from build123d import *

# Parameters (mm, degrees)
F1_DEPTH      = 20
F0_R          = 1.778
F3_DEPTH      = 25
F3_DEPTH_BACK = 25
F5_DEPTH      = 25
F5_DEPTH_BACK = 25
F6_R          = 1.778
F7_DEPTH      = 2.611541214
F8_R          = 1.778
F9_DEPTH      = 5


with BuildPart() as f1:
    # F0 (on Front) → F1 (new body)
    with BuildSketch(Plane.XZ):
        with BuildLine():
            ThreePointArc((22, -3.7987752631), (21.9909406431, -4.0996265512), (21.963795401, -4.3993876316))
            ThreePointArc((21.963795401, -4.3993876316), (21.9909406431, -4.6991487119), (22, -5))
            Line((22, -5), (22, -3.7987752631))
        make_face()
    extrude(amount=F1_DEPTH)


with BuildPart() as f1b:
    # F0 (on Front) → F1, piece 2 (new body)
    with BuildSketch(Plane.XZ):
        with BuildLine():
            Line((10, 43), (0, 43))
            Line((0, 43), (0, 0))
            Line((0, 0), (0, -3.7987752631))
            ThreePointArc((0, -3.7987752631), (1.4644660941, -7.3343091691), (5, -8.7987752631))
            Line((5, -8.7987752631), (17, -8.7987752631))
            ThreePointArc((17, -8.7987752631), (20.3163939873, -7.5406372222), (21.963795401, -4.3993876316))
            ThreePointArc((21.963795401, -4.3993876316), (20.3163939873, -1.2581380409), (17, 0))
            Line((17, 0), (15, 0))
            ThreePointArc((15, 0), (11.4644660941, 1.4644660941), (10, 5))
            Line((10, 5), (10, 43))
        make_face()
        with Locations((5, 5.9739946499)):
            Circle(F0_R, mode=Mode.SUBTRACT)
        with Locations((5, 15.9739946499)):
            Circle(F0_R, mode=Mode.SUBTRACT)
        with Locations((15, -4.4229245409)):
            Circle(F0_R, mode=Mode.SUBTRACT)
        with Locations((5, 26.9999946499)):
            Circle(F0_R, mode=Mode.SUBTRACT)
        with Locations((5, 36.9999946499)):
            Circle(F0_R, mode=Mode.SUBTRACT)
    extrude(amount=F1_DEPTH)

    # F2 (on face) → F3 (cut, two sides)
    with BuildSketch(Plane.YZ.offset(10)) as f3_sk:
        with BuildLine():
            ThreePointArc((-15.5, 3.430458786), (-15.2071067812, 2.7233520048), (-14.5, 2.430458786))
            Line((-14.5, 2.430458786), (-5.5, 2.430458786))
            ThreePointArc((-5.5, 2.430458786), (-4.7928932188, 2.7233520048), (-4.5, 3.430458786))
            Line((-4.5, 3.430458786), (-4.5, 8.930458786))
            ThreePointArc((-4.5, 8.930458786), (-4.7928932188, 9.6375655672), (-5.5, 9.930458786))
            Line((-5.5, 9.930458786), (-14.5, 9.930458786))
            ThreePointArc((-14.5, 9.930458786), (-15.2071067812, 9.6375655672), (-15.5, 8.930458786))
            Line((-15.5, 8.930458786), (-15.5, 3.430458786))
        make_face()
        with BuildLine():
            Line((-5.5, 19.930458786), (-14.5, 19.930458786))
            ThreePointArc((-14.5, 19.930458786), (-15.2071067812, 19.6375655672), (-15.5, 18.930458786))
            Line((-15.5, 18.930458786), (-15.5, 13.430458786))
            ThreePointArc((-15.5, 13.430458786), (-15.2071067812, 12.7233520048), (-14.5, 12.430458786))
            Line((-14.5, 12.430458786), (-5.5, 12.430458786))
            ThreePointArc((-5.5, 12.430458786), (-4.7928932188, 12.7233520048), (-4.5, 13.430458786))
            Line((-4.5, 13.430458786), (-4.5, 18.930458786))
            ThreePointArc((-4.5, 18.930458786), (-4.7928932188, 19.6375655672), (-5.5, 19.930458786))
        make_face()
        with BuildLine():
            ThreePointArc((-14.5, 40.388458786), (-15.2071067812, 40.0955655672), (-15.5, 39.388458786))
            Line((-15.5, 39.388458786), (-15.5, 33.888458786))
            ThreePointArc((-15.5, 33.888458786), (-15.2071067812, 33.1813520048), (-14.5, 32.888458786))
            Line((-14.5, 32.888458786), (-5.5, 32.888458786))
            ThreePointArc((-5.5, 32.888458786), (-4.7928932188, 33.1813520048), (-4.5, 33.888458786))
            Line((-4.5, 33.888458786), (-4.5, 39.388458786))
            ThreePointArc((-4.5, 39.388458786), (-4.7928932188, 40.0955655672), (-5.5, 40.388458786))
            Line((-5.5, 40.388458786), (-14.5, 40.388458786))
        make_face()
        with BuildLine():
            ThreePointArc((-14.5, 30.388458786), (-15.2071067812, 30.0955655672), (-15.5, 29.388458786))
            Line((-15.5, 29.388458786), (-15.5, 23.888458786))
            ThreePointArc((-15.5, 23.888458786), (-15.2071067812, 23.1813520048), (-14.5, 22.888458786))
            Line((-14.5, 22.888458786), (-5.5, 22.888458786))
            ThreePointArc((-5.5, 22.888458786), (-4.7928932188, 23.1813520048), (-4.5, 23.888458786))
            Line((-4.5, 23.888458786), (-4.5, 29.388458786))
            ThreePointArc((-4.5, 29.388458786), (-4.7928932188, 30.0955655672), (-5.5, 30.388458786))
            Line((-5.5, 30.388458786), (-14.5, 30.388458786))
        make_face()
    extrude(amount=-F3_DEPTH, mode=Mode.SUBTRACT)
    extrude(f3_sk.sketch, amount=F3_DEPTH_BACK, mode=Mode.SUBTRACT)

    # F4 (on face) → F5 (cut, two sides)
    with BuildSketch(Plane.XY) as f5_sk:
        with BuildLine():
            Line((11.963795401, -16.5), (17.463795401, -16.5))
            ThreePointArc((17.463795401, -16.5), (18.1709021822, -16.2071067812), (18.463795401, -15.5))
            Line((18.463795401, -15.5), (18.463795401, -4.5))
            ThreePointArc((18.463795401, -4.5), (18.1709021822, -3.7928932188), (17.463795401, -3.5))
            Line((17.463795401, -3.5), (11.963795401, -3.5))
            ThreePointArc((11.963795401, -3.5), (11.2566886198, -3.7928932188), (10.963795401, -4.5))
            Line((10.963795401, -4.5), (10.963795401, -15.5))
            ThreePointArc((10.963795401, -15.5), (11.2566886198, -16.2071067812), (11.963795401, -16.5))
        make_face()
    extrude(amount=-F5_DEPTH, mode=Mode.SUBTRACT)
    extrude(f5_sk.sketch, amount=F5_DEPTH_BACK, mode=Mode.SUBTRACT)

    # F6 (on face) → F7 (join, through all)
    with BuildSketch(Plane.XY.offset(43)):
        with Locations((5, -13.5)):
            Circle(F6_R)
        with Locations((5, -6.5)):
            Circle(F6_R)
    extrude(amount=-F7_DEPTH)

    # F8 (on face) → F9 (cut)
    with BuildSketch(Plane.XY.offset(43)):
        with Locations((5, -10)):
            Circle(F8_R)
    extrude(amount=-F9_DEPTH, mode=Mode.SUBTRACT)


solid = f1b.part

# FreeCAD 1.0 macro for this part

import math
import FreeCAD as App
import Part
import Sketcher

V = App.Vector
Q = App.Units.Quantity

doc = App.newDocument("Part")
body = doc.addObject("PartDesign::Body", "Body")

sketch1 = body.newObject("Sketcher::SketchObject", "Sketch")
sketch1.AttachmentSupport = (doc.getObject("XZ_Plane"), [""])
sketch1.MapMode = "FlatFace"
sketch1.addGeometry(Part.ArcOfCircle(Part.Circle(V(17, -3.8, 0), V(0, 0, 1), 5), math.radians(-6.9), math.radians(0)), False)
sketch1.addGeometry(Part.ArcOfCircle(Part.Circle(V(17, -5, 0), V(0, 0, 1), 5), math.radians(0), math.radians(6.9)), False)
sketch1.addGeometry(Part.LineSegment(V(22, -5, 0), V(22, -3.8, 0)), False)
sketch1.addConstraint(Sketcher.Constraint("Coincident", 0, 1, 1, 2))
sketch1.addConstraint(Sketcher.Constraint("Tangent", 1, 1, 2, 1))
sketch1.addConstraint(Sketcher.Constraint("Tangent", 2, 2, 0, 2))
sketch1.addConstraint(Sketcher.Constraint("Vertical", 2))
sketch1.addConstraint(Sketcher.Constraint("Equal", 0, 1))
sketch1.addConstraint(Sketcher.Constraint("Radius", 0, Q("5 mm")))
sketch1.addConstraint(Sketcher.Constraint("DistanceX", -1, 1, 0, 3, Q("17 mm")))
sketch1.addConstraint(Sketcher.Constraint("DistanceY", 1, 3, -1, 1, Q("5 mm")))
sketch1.addConstraint(Sketcher.Constraint("DistanceY", 2, 1, 2, 2, Q("1.201225 mm")))
pad1 = body.newObject("PartDesign::Pad", "Pad")
pad1.Profile = sketch1
pad1.Length = 20
body2 = doc.addObject("PartDesign::Body", "Body001")

sketch2 = body2.newObject("Sketcher::SketchObject", "Sketch001")
sketch2.AttachmentSupport = (doc.getObject("XZ_Plane001"), [""])
sketch2.MapMode = "FlatFace"
sketch2.addGeometry(Part.LineSegment(V(10, 43, 0), V(0, 43, 0)), False)
sketch2.addGeometry(Part.LineSegment(V(0, 43, 0), V(0, -3.8, 0)), False)
sketch2.addGeometry(Part.ArcOfCircle(Part.Circle(V(5, -3.8, 0), V(0, 0, 1), 5), math.radians(180), math.radians(270)), False)
sketch2.addGeometry(Part.LineSegment(V(5, -8.8, 0), V(17, -8.8, 0)), False)
sketch2.addGeometry(Part.ArcOfCircle(Part.Circle(V(17, -3.8, 0), V(0, 0, 1), 5), math.radians(-90), math.radians(-7)), False)
sketch2.addGeometry(Part.ArcOfCircle(Part.Circle(V(17, -5, 0), V(0, 0, 1), 5), math.radians(7), math.radians(90)), False)
sketch2.addGeometry(Part.LineSegment(V(17, 0, 0), V(15, 0, 0)), False)
sketch2.addGeometry(Part.ArcOfCircle(Part.Circle(V(15, 5, 0), V(0, 0, 1), 5), math.radians(180), math.radians(270)), False)
sketch2.addGeometry(Part.LineSegment(V(10, 5, 0), V(10, 43, 0)), False)
sketch2.addGeometry(Part.Circle(V(5, 6, 0), V(0, 0, 1), 1.8), False)
sketch2.addGeometry(Part.Circle(V(5, 16, 0), V(0, 0, 1), 1.8), False)
sketch2.addGeometry(Part.Circle(V(15, -4.4, 0), V(0, 0, 1), 1.8), False)
sketch2.addGeometry(Part.Circle(V(5, 27, 0), V(0, 0, 1), 1.8), False)
sketch2.addGeometry(Part.Circle(V(5, 37, 0), V(0, 0, 1), 1.8), False)
sketch2.addConstraint(Sketcher.Constraint("Coincident", 0, 2, 1, 1))
sketch2.addConstraint(Sketcher.Constraint("Tangent", 1, 2, 2, 1))
sketch2.addConstraint(Sketcher.Constraint("Tangent", 2, 2, 3, 1))
sketch2.addConstraint(Sketcher.Constraint("Tangent", 3, 2, 4, 1))
sketch2.addConstraint(Sketcher.Constraint("Coincident", 4, 2, 5, 1))
sketch2.addConstraint(Sketcher.Constraint("Tangent", 5, 2, 6, 1))
sketch2.addConstraint(Sketcher.Constraint("Tangent", 6, 2, 7, 2))
sketch2.addConstraint(Sketcher.Constraint("Tangent", 7, 1, 8, 1))
sketch2.addConstraint(Sketcher.Constraint("Coincident", 8, 2, 0, 1))
sketch2.addConstraint(Sketcher.Constraint("Horizontal", 0))
sketch2.addConstraint(Sketcher.Constraint("Vertical", 1))
sketch2.addConstraint(Sketcher.Constraint("Horizontal", 3))
sketch2.addConstraint(Sketcher.Constraint("Horizontal", 6))
sketch2.addConstraint(Sketcher.Constraint("Vertical", 8))
sketch2.addConstraint(Sketcher.Constraint("Equal", 2, 4))
sketch2.addConstraint(Sketcher.Constraint("Equal", 4, 5))
sketch2.addConstraint(Sketcher.Constraint("Equal", 5, 7))
sketch2.addConstraint(Sketcher.Constraint("Equal", 9, 10))
sketch2.addConstraint(Sketcher.Constraint("Equal", 10, 11))
sketch2.addConstraint(Sketcher.Constraint("Equal", 11, 12))
sketch2.addConstraint(Sketcher.Constraint("Equal", 12, 13))
sketch2.addConstraint(Sketcher.Constraint("PointOnObject", 0, 2, -2))
sketch2.addConstraint(Sketcher.Constraint("PointOnObject", 5, 2, -1))
sketch2.addConstraint(Sketcher.Constraint("Vertical", 4, 3, 5, 3))
sketch2.addConstraint(Sketcher.Constraint("Vertical", 2, 3, 9, 3))
sketch2.addConstraint(Sketcher.Constraint("Vertical", 9, 3, 10, 3))
sketch2.addConstraint(Sketcher.Constraint("Vertical", 7, 3, 11, 3))
sketch2.addConstraint(Sketcher.Constraint("Vertical", 10, 3, 12, 3))
sketch2.addConstraint(Sketcher.Constraint("Vertical", 12, 3, 13, 3))
sketch2.addConstraint(Sketcher.Constraint("Radius", 2, Q("5 mm")))
sketch2.addConstraint(Sketcher.Constraint("DistanceX", 0, 2, 0, 1, Q("10 mm")))
sketch2.addConstraint(Sketcher.Constraint("DistanceX", 3, 1, 3, 2, Q("12 mm")))
sketch2.addConstraint(Sketcher.Constraint("DistanceY", 8, 1, 8, 2, Q("38 mm")))
sketch2.addConstraint(Sketcher.Constraint("Diameter", 9, Q("3.556 mm")))
sketch2.addConstraint(Sketcher.Constraint("DistanceY", 9, 3, 10, 3, Q("10 mm")))
sketch2.addConstraint(Sketcher.Constraint("DistanceY", 12, 3, 13, 3, Q("10 mm")))
sketch2.addConstraint(Sketcher.Constraint("DistanceY", 10, 3, 12, 3, Q("11.026 mm")))
sketch2.addConstraint(Sketcher.Constraint("DistanceY", 1, 2, 1, 1, Q("46.798775 mm")))
sketch2.addConstraint(Sketcher.Constraint("DistanceY", 2, 3, 9, 3, Q("9.77277 mm")))
sketch2.addConstraint(Sketcher.Constraint("DistanceY", 11, 3, 4, 3, Q("0.624149 mm")))
pad2 = body2.newObject("PartDesign::Pad", "Pad001")
pad2.Profile = sketch2
pad2.Length = 20

sketch3 = body2.newObject("Sketcher::SketchObject", "Sketch002")
sketch3.AttachmentSupport = (doc.getObject("YZ_Plane001"), [""])
sketch3.MapMode = "FlatFace"
sketch3.AttachmentOffset = App.Placement(V(0, 0, 10), App.Rotation())
sketch3.addGeometry(Part.ArcOfCircle(Part.Circle(V(-14.5, 3.4, 0), V(0, 0, 1), 1), math.radians(180), math.radians(270)), False)
sketch3.addGeometry(Part.LineSegment(V(-14.5, 2.4, 0), V(-5.5, 2.4, 0)), False)
sketch3.addGeometry(Part.ArcOfCircle(Part.Circle(V(-5.5, 3.4, 0), V(0, 0, 1), 1), math.radians(-90), math.radians(0)), False)
sketch3.addGeometry(Part.LineSegment(V(-4.5, 3.4, 0), V(-4.5, 8.9, 0)), False)
sketch3.addGeometry(Part.ArcOfCircle(Part.Circle(V(-5.5, 8.9, 0), V(0, 0, 1), 1), math.radians(0), math.radians(90)), False)
sketch3.addGeometry(Part.LineSegment(V(-5.5, 9.9, 0), V(-14.5, 9.9, 0)), False)
sketch3.addGeometry(Part.ArcOfCircle(Part.Circle(V(-14.5, 8.9, 0), V(0, 0, 1), 1), math.radians(90), math.radians(180)), False)
sketch3.addGeometry(Part.LineSegment(V(-15.5, 8.9, 0), V(-15.5, 3.4, 0)), False)
sketch3.addGeometry(Part.LineSegment(V(-5.5, 19.9, 0), V(-14.5, 19.9, 0)), False)
sketch3.addGeometry(Part.ArcOfCircle(Part.Circle(V(-14.5, 18.9, 0), V(0, 0, 1), 1), math.radians(90), math.radians(180)), False)
sketch3.addGeometry(Part.LineSegment(V(-15.5, 18.9, 0), V(-15.5, 13.4, 0)), False)
sketch3.addGeometry(Part.ArcOfCircle(Part.Circle(V(-14.5, 13.4, 0), V(0, 0, 1), 1), math.radians(180), math.radians(270)), False)
sketch3.addGeometry(Part.LineSegment(V(-14.5, 12.4, 0), V(-5.5, 12.4, 0)), False)
sketch3.addGeometry(Part.ArcOfCircle(Part.Circle(V(-5.5, 13.4, 0), V(0, 0, 1), 1), math.radians(-90), math.radians(0)), False)
sketch3.addGeometry(Part.LineSegment(V(-4.5, 13.4, 0), V(-4.5, 18.9, 0)), False)
sketch3.addGeometry(Part.ArcOfCircle(Part.Circle(V(-5.5, 18.9, 0), V(0, 0, 1), 1), math.radians(0), math.radians(90)), False)
sketch3.addGeometry(Part.ArcOfCircle(Part.Circle(V(-14.5, 39.4, 0), V(0, 0, 1), 1), math.radians(90), math.radians(180)), False)
sketch3.addGeometry(Part.LineSegment(V(-15.5, 39.4, 0), V(-15.5, 33.9, 0)), False)
sketch3.addGeometry(Part.ArcOfCircle(Part.Circle(V(-14.5, 33.9, 0), V(0, 0, 1), 1), math.radians(180), math.radians(270)), False)
sketch3.addGeometry(Part.LineSegment(V(-14.5, 32.9, 0), V(-5.5, 32.9, 0)), False)
sketch3.addGeometry(Part.ArcOfCircle(Part.Circle(V(-5.5, 33.9, 0), V(0, 0, 1), 1), math.radians(-90), math.radians(0)), False)
sketch3.addGeometry(Part.LineSegment(V(-4.5, 33.9, 0), V(-4.5, 39.4, 0)), False)
sketch3.addGeometry(Part.ArcOfCircle(Part.Circle(V(-5.5, 39.4, 0), V(0, 0, 1), 1), math.radians(0), math.radians(90)), False)
sketch3.addGeometry(Part.LineSegment(V(-5.5, 40.4, 0), V(-14.5, 40.4, 0)), False)
sketch3.addGeometry(Part.ArcOfCircle(Part.Circle(V(-14.5, 29.4, 0), V(0, 0, 1), 1), math.radians(90), math.radians(180)), False)
sketch3.addGeometry(Part.LineSegment(V(-15.5, 29.4, 0), V(-15.5, 23.9, 0)), False)
sketch3.addGeometry(Part.ArcOfCircle(Part.Circle(V(-14.5, 23.9, 0), V(0, 0, 1), 1), math.radians(180), math.radians(270)), False)
sketch3.addGeometry(Part.LineSegment(V(-14.5, 22.9, 0), V(-5.5, 22.9, 0)), False)
sketch3.addGeometry(Part.ArcOfCircle(Part.Circle(V(-5.5, 23.9, 0), V(0, 0, 1), 1), math.radians(-90), math.radians(0)), False)
sketch3.addGeometry(Part.LineSegment(V(-4.5, 23.9, 0), V(-4.5, 29.4, 0)), False)
sketch3.addGeometry(Part.ArcOfCircle(Part.Circle(V(-5.5, 29.4, 0), V(0, 0, 1), 1), math.radians(0), math.radians(90)), False)
sketch3.addGeometry(Part.LineSegment(V(-5.5, 30.4, 0), V(-14.5, 30.4, 0)), False)
sketch3.addConstraint(Sketcher.Constraint("Tangent", 0, 2, 1, 1))
sketch3.addConstraint(Sketcher.Constraint("Tangent", 1, 2, 2, 1))
sketch3.addConstraint(Sketcher.Constraint("Tangent", 2, 2, 3, 1))
sketch3.addConstraint(Sketcher.Constraint("Tangent", 3, 2, 4, 1))
sketch3.addConstraint(Sketcher.Constraint("Tangent", 4, 2, 5, 1))
sketch3.addConstraint(Sketcher.Constraint("Tangent", 5, 2, 6, 1))
sketch3.addConstraint(Sketcher.Constraint("Tangent", 6, 2, 7, 1))
sketch3.addConstraint(Sketcher.Constraint("Tangent", 7, 2, 0, 1))
sketch3.addConstraint(Sketcher.Constraint("Tangent", 8, 2, 9, 1))
sketch3.addConstraint(Sketcher.Constraint("Tangent", 9, 2, 10, 1))
sketch3.addConstraint(Sketcher.Constraint("Tangent", 10, 2, 11, 1))
sketch3.addConstraint(Sketcher.Constraint("Tangent", 11, 2, 12, 1))
sketch3.addConstraint(Sketcher.Constraint("Tangent", 12, 2, 13, 1))
sketch3.addConstraint(Sketcher.Constraint("Tangent", 13, 2, 14, 1))
sketch3.addConstraint(Sketcher.Constraint("Tangent", 14, 2, 15, 1))
sketch3.addConstraint(Sketcher.Constraint("Tangent", 15, 2, 8, 1))
sketch3.addConstraint(Sketcher.Constraint("Tangent", 16, 2, 17, 1))
sketch3.addConstraint(Sketcher.Constraint("Tangent", 17, 2, 18, 1))
sketch3.addConstraint(Sketcher.Constraint("Tangent", 18, 2, 19, 1))
sketch3.addConstraint(Sketcher.Constraint("Tangent", 19, 2, 20, 1))
sketch3.addConstraint(Sketcher.Constraint("Tangent", 20, 2, 21, 1))
sketch3.addConstraint(Sketcher.Constraint("Tangent", 21, 2, 22, 1))
sketch3.addConstraint(Sketcher.Constraint("Tangent", 22, 2, 23, 1))
sketch3.addConstraint(Sketcher.Constraint("Tangent", 23, 2, 16, 1))
sketch3.addConstraint(Sketcher.Constraint("Tangent", 24, 2, 25, 1))
sketch3.addConstraint(Sketcher.Constraint("Tangent", 25, 2, 26, 1))
sketch3.addConstraint(Sketcher.Constraint("Tangent", 26, 2, 27, 1))
sketch3.addConstraint(Sketcher.Constraint("Tangent", 27, 2, 28, 1))
sketch3.addConstraint(Sketcher.Constraint("Tangent", 28, 2, 29, 1))
sketch3.addConstraint(Sketcher.Constraint("Tangent", 29, 2, 30, 1))
sketch3.addConstraint(Sketcher.Constraint("Tangent", 30, 2, 31, 1))
sketch3.addConstraint(Sketcher.Constraint("Tangent", 31, 2, 24, 1))
sketch3.addConstraint(Sketcher.Constraint("Horizontal", 1))
sketch3.addConstraint(Sketcher.Constraint("Vertical", 3))
sketch3.addConstraint(Sketcher.Constraint("Horizontal", 5))
sketch3.addConstraint(Sketcher.Constraint("Vertical", 7))
sketch3.addConstraint(Sketcher.Constraint("Horizontal", 8))
sketch3.addConstraint(Sketcher.Constraint("Vertical", 10))
sketch3.addConstraint(Sketcher.Constraint("Horizontal", 12))
sketch3.addConstraint(Sketcher.Constraint("Vertical", 14))
sketch3.addConstraint(Sketcher.Constraint("Vertical", 17))
sketch3.addConstraint(Sketcher.Constraint("Horizontal", 19))
sketch3.addConstraint(Sketcher.Constraint("Vertical", 21))
sketch3.addConstraint(Sketcher.Constraint("Horizontal", 23))
sketch3.addConstraint(Sketcher.Constraint("Vertical", 25))
sketch3.addConstraint(Sketcher.Constraint("Horizontal", 27))
sketch3.addConstraint(Sketcher.Constraint("Vertical", 29))
sketch3.addConstraint(Sketcher.Constraint("Horizontal", 31))
sketch3.addConstraint(Sketcher.Constraint("Equal", 0, 2))
sketch3.addConstraint(Sketcher.Constraint("Equal", 2, 4))
sketch3.addConstraint(Sketcher.Constraint("Equal", 4, 6))
sketch3.addConstraint(Sketcher.Constraint("Equal", 6, 9))
sketch3.addConstraint(Sketcher.Constraint("Equal", 9, 11))
sketch3.addConstraint(Sketcher.Constraint("Equal", 11, 13))
sketch3.addConstraint(Sketcher.Constraint("Equal", 13, 15))
sketch3.addConstraint(Sketcher.Constraint("Equal", 15, 16))
sketch3.addConstraint(Sketcher.Constraint("Equal", 16, 18))
sketch3.addConstraint(Sketcher.Constraint("Equal", 18, 20))
sketch3.addConstraint(Sketcher.Constraint("Equal", 20, 22))
sketch3.addConstraint(Sketcher.Constraint("Equal", 22, 24))
sketch3.addConstraint(Sketcher.Constraint("Equal", 24, 26))
sketch3.addConstraint(Sketcher.Constraint("Equal", 26, 28))
sketch3.addConstraint(Sketcher.Constraint("Equal", 28, 30))
sketch3.addConstraint(Sketcher.Constraint("Vertical", 6, 3, 9, 3))
sketch3.addConstraint(Sketcher.Constraint("Vertical", 4, 3, 13, 3))
sketch3.addConstraint(Sketcher.Constraint("Vertical", 11, 3, 16, 3))
sketch3.addConstraint(Sketcher.Constraint("Vertical", 15, 3, 20, 3))
sketch3.addConstraint(Sketcher.Constraint("Vertical", 18, 3, 24, 3))
sketch3.addConstraint(Sketcher.Constraint("Vertical", 22, 3, 28, 3))
sketch3.addConstraint(Sketcher.Constraint("Equal", 7, 10))
sketch3.addConstraint(Sketcher.Constraint("Equal", 14, 17))
sketch3.addConstraint(Sketcher.Constraint("Equal", 21, 25))
sketch3.addConstraint(Sketcher.Constraint("Radius", 0, Q("1 mm")))
sketch3.addConstraint(Sketcher.Constraint("DistanceX", 1, 1, 1, 2, Q("9 mm")))
sketch3.addConstraint(Sketcher.Constraint("DistanceY", 3, 1, 3, 2, Q("5.5 mm")))
sketch3.addConstraint(Sketcher.Constraint("DistanceY", 6, 3, 9, 3, Q("10 mm")))
sketch3.addConstraint(Sketcher.Constraint("DistanceY", 24, 3, 16, 3, Q("10 mm")))
sketch3.addConstraint(Sketcher.Constraint("DistanceX", 0, 3, -1, 1, Q("14.5 mm")))
sketch3.addConstraint(Sketcher.Constraint("DistanceY", 9, 3, 16, 3, Q("20.458 mm")))
sketch3.addConstraint(Sketcher.Constraint("DistanceY", -1, 1, 0, 3, Q("3.430459 mm")))
pocket1 = body2.newObject("PartDesign::Pocket", "Pocket")
pocket1.Profile = sketch3
pocket1.Type = "ThroughAll"
pocket1.Midplane = True

sketch4 = body2.newObject("Sketcher::SketchObject", "Sketch003")
sketch4.AttachmentSupport = (doc.getObject("XY_Plane001"), [""])
sketch4.MapMode = "FlatFace"
sketch4.addGeometry(Part.LineSegment(V(12, -16.5, 0), V(17.5, -16.5, 0)), False)
sketch4.addGeometry(Part.ArcOfCircle(Part.Circle(V(17.5, -15.5, 0), V(0, 0, 1), 1), math.radians(-90), math.radians(0)), False)
sketch4.addGeometry(Part.LineSegment(V(18.5, -15.5, 0), V(18.5, -4.5, 0)), False)
sketch4.addGeometry(Part.ArcOfCircle(Part.Circle(V(17.5, -4.5, 0), V(0, 0, 1), 1), math.radians(0), math.radians(90)), False)
sketch4.addGeometry(Part.LineSegment(V(17.5, -3.5, 0), V(12, -3.5, 0)), False)
sketch4.addGeometry(Part.ArcOfCircle(Part.Circle(V(12, -4.5, 0), V(0, 0, 1), 1), math.radians(90), math.radians(180)), False)
sketch4.addGeometry(Part.LineSegment(V(11, -4.5, 0), V(11, -15.5, 0)), False)
sketch4.addGeometry(Part.ArcOfCircle(Part.Circle(V(12, -15.5, 0), V(0, 0, 1), 1), math.radians(180), math.radians(270)), False)
sketch4.addConstraint(Sketcher.Constraint("Tangent", 0, 2, 1, 1))
sketch4.addConstraint(Sketcher.Constraint("Tangent", 1, 2, 2, 1))
sketch4.addConstraint(Sketcher.Constraint("Tangent", 2, 2, 3, 1))
sketch4.addConstraint(Sketcher.Constraint("Tangent", 3, 2, 4, 1))
sketch4.addConstraint(Sketcher.Constraint("Tangent", 4, 2, 5, 1))
sketch4.addConstraint(Sketcher.Constraint("Tangent", 5, 2, 6, 1))
sketch4.addConstraint(Sketcher.Constraint("Tangent", 6, 2, 7, 1))
sketch4.addConstraint(Sketcher.Constraint("Tangent", 7, 2, 0, 1))
sketch4.addConstraint(Sketcher.Constraint("Horizontal", 0))
sketch4.addConstraint(Sketcher.Constraint("Vertical", 2))
sketch4.addConstraint(Sketcher.Constraint("Horizontal", 4))
sketch4.addConstraint(Sketcher.Constraint("Vertical", 6))
sketch4.addConstraint(Sketcher.Constraint("Equal", 1, 3))
sketch4.addConstraint(Sketcher.Constraint("Equal", 3, 5))
sketch4.addConstraint(Sketcher.Constraint("Equal", 5, 7))
sketch4.addConstraint(Sketcher.Constraint("Radius", 1, Q("1 mm")))
sketch4.addConstraint(Sketcher.Constraint("DistanceY", 2, 1, 2, 2, Q("11 mm")))
sketch4.addConstraint(Sketcher.Constraint("DistanceX", 0, 1, 0, 2, Q("5.5 mm")))
sketch4.addConstraint(Sketcher.Constraint("DistanceY", 1, 3, -1, 1, Q("15.5 mm")))
sketch4.addConstraint(Sketcher.Constraint("DistanceX", -1, 1, 1, 3, Q("17.463795 mm")))
pocket2 = body2.newObject("PartDesign::Pocket", "Pocket001")
pocket2.Profile = sketch4
pocket2.Type = "ThroughAll"
pocket2.Midplane = True

sketch5 = body2.newObject("Sketcher::SketchObject", "Sketch004")
sketch5.AttachmentSupport = (doc.getObject("XY_Plane001"), [""])
sketch5.MapMode = "FlatFace"
sketch5.AttachmentOffset = App.Placement(V(0, 0, 43), App.Rotation())
sketch5.addGeometry(Part.Circle(V(5, -13.5, 0), V(0, 0, 1), 1.8), False)
sketch5.addGeometry(Part.Circle(V(5, -6.5, 0), V(0, 0, 1), 1.8), False)
sketch5.addConstraint(Sketcher.Constraint("Equal", 0, 1))
sketch5.addConstraint(Sketcher.Constraint("Vertical", 0, 3, 1, 3))
sketch5.addConstraint(Sketcher.Constraint("Diameter", 0, Q("3.556 mm")))
sketch5.addConstraint(Sketcher.Constraint("DistanceX", -1, 1, 0, 3, Q("5 mm")))
sketch5.addConstraint(Sketcher.Constraint("DistanceY", 0, 3, 1, 3, Q("7 mm")))
sketch5.addConstraint(Sketcher.Constraint("DistanceY", 0, 3, -1, 1, Q("13.5 mm")))
pad3 = body2.newObject("PartDesign::Pad", "Pad002")
pad3.Profile = sketch5
pad3.Length = 2.611541
pad3.Reversed = True

sketch6 = body2.newObject("Sketcher::SketchObject", "Sketch005")
sketch6.AttachmentSupport = (doc.getObject("XY_Plane001"), [""])
sketch6.MapMode = "FlatFace"
sketch6.AttachmentOffset = App.Placement(V(0, 0, 43), App.Rotation())
sketch6.addGeometry(Part.Circle(V(5, -10, 0), V(0, 0, 1), 1.8), False)
sketch6.addConstraint(Sketcher.Constraint("Diameter", 0, Q("3.556 mm")))
sketch6.addConstraint(Sketcher.Constraint("DistanceX", -1, 1, 0, 3, Q("5 mm")))
sketch6.addConstraint(Sketcher.Constraint("DistanceY", 0, 3, -1, 1, Q("10 mm")))
pocket3 = body2.newObject("PartDesign::Pocket", "Pocket002")
pocket3.Profile = sketch6
pocket3.Length = 5
body.Visibility = False

doc.recompute()
